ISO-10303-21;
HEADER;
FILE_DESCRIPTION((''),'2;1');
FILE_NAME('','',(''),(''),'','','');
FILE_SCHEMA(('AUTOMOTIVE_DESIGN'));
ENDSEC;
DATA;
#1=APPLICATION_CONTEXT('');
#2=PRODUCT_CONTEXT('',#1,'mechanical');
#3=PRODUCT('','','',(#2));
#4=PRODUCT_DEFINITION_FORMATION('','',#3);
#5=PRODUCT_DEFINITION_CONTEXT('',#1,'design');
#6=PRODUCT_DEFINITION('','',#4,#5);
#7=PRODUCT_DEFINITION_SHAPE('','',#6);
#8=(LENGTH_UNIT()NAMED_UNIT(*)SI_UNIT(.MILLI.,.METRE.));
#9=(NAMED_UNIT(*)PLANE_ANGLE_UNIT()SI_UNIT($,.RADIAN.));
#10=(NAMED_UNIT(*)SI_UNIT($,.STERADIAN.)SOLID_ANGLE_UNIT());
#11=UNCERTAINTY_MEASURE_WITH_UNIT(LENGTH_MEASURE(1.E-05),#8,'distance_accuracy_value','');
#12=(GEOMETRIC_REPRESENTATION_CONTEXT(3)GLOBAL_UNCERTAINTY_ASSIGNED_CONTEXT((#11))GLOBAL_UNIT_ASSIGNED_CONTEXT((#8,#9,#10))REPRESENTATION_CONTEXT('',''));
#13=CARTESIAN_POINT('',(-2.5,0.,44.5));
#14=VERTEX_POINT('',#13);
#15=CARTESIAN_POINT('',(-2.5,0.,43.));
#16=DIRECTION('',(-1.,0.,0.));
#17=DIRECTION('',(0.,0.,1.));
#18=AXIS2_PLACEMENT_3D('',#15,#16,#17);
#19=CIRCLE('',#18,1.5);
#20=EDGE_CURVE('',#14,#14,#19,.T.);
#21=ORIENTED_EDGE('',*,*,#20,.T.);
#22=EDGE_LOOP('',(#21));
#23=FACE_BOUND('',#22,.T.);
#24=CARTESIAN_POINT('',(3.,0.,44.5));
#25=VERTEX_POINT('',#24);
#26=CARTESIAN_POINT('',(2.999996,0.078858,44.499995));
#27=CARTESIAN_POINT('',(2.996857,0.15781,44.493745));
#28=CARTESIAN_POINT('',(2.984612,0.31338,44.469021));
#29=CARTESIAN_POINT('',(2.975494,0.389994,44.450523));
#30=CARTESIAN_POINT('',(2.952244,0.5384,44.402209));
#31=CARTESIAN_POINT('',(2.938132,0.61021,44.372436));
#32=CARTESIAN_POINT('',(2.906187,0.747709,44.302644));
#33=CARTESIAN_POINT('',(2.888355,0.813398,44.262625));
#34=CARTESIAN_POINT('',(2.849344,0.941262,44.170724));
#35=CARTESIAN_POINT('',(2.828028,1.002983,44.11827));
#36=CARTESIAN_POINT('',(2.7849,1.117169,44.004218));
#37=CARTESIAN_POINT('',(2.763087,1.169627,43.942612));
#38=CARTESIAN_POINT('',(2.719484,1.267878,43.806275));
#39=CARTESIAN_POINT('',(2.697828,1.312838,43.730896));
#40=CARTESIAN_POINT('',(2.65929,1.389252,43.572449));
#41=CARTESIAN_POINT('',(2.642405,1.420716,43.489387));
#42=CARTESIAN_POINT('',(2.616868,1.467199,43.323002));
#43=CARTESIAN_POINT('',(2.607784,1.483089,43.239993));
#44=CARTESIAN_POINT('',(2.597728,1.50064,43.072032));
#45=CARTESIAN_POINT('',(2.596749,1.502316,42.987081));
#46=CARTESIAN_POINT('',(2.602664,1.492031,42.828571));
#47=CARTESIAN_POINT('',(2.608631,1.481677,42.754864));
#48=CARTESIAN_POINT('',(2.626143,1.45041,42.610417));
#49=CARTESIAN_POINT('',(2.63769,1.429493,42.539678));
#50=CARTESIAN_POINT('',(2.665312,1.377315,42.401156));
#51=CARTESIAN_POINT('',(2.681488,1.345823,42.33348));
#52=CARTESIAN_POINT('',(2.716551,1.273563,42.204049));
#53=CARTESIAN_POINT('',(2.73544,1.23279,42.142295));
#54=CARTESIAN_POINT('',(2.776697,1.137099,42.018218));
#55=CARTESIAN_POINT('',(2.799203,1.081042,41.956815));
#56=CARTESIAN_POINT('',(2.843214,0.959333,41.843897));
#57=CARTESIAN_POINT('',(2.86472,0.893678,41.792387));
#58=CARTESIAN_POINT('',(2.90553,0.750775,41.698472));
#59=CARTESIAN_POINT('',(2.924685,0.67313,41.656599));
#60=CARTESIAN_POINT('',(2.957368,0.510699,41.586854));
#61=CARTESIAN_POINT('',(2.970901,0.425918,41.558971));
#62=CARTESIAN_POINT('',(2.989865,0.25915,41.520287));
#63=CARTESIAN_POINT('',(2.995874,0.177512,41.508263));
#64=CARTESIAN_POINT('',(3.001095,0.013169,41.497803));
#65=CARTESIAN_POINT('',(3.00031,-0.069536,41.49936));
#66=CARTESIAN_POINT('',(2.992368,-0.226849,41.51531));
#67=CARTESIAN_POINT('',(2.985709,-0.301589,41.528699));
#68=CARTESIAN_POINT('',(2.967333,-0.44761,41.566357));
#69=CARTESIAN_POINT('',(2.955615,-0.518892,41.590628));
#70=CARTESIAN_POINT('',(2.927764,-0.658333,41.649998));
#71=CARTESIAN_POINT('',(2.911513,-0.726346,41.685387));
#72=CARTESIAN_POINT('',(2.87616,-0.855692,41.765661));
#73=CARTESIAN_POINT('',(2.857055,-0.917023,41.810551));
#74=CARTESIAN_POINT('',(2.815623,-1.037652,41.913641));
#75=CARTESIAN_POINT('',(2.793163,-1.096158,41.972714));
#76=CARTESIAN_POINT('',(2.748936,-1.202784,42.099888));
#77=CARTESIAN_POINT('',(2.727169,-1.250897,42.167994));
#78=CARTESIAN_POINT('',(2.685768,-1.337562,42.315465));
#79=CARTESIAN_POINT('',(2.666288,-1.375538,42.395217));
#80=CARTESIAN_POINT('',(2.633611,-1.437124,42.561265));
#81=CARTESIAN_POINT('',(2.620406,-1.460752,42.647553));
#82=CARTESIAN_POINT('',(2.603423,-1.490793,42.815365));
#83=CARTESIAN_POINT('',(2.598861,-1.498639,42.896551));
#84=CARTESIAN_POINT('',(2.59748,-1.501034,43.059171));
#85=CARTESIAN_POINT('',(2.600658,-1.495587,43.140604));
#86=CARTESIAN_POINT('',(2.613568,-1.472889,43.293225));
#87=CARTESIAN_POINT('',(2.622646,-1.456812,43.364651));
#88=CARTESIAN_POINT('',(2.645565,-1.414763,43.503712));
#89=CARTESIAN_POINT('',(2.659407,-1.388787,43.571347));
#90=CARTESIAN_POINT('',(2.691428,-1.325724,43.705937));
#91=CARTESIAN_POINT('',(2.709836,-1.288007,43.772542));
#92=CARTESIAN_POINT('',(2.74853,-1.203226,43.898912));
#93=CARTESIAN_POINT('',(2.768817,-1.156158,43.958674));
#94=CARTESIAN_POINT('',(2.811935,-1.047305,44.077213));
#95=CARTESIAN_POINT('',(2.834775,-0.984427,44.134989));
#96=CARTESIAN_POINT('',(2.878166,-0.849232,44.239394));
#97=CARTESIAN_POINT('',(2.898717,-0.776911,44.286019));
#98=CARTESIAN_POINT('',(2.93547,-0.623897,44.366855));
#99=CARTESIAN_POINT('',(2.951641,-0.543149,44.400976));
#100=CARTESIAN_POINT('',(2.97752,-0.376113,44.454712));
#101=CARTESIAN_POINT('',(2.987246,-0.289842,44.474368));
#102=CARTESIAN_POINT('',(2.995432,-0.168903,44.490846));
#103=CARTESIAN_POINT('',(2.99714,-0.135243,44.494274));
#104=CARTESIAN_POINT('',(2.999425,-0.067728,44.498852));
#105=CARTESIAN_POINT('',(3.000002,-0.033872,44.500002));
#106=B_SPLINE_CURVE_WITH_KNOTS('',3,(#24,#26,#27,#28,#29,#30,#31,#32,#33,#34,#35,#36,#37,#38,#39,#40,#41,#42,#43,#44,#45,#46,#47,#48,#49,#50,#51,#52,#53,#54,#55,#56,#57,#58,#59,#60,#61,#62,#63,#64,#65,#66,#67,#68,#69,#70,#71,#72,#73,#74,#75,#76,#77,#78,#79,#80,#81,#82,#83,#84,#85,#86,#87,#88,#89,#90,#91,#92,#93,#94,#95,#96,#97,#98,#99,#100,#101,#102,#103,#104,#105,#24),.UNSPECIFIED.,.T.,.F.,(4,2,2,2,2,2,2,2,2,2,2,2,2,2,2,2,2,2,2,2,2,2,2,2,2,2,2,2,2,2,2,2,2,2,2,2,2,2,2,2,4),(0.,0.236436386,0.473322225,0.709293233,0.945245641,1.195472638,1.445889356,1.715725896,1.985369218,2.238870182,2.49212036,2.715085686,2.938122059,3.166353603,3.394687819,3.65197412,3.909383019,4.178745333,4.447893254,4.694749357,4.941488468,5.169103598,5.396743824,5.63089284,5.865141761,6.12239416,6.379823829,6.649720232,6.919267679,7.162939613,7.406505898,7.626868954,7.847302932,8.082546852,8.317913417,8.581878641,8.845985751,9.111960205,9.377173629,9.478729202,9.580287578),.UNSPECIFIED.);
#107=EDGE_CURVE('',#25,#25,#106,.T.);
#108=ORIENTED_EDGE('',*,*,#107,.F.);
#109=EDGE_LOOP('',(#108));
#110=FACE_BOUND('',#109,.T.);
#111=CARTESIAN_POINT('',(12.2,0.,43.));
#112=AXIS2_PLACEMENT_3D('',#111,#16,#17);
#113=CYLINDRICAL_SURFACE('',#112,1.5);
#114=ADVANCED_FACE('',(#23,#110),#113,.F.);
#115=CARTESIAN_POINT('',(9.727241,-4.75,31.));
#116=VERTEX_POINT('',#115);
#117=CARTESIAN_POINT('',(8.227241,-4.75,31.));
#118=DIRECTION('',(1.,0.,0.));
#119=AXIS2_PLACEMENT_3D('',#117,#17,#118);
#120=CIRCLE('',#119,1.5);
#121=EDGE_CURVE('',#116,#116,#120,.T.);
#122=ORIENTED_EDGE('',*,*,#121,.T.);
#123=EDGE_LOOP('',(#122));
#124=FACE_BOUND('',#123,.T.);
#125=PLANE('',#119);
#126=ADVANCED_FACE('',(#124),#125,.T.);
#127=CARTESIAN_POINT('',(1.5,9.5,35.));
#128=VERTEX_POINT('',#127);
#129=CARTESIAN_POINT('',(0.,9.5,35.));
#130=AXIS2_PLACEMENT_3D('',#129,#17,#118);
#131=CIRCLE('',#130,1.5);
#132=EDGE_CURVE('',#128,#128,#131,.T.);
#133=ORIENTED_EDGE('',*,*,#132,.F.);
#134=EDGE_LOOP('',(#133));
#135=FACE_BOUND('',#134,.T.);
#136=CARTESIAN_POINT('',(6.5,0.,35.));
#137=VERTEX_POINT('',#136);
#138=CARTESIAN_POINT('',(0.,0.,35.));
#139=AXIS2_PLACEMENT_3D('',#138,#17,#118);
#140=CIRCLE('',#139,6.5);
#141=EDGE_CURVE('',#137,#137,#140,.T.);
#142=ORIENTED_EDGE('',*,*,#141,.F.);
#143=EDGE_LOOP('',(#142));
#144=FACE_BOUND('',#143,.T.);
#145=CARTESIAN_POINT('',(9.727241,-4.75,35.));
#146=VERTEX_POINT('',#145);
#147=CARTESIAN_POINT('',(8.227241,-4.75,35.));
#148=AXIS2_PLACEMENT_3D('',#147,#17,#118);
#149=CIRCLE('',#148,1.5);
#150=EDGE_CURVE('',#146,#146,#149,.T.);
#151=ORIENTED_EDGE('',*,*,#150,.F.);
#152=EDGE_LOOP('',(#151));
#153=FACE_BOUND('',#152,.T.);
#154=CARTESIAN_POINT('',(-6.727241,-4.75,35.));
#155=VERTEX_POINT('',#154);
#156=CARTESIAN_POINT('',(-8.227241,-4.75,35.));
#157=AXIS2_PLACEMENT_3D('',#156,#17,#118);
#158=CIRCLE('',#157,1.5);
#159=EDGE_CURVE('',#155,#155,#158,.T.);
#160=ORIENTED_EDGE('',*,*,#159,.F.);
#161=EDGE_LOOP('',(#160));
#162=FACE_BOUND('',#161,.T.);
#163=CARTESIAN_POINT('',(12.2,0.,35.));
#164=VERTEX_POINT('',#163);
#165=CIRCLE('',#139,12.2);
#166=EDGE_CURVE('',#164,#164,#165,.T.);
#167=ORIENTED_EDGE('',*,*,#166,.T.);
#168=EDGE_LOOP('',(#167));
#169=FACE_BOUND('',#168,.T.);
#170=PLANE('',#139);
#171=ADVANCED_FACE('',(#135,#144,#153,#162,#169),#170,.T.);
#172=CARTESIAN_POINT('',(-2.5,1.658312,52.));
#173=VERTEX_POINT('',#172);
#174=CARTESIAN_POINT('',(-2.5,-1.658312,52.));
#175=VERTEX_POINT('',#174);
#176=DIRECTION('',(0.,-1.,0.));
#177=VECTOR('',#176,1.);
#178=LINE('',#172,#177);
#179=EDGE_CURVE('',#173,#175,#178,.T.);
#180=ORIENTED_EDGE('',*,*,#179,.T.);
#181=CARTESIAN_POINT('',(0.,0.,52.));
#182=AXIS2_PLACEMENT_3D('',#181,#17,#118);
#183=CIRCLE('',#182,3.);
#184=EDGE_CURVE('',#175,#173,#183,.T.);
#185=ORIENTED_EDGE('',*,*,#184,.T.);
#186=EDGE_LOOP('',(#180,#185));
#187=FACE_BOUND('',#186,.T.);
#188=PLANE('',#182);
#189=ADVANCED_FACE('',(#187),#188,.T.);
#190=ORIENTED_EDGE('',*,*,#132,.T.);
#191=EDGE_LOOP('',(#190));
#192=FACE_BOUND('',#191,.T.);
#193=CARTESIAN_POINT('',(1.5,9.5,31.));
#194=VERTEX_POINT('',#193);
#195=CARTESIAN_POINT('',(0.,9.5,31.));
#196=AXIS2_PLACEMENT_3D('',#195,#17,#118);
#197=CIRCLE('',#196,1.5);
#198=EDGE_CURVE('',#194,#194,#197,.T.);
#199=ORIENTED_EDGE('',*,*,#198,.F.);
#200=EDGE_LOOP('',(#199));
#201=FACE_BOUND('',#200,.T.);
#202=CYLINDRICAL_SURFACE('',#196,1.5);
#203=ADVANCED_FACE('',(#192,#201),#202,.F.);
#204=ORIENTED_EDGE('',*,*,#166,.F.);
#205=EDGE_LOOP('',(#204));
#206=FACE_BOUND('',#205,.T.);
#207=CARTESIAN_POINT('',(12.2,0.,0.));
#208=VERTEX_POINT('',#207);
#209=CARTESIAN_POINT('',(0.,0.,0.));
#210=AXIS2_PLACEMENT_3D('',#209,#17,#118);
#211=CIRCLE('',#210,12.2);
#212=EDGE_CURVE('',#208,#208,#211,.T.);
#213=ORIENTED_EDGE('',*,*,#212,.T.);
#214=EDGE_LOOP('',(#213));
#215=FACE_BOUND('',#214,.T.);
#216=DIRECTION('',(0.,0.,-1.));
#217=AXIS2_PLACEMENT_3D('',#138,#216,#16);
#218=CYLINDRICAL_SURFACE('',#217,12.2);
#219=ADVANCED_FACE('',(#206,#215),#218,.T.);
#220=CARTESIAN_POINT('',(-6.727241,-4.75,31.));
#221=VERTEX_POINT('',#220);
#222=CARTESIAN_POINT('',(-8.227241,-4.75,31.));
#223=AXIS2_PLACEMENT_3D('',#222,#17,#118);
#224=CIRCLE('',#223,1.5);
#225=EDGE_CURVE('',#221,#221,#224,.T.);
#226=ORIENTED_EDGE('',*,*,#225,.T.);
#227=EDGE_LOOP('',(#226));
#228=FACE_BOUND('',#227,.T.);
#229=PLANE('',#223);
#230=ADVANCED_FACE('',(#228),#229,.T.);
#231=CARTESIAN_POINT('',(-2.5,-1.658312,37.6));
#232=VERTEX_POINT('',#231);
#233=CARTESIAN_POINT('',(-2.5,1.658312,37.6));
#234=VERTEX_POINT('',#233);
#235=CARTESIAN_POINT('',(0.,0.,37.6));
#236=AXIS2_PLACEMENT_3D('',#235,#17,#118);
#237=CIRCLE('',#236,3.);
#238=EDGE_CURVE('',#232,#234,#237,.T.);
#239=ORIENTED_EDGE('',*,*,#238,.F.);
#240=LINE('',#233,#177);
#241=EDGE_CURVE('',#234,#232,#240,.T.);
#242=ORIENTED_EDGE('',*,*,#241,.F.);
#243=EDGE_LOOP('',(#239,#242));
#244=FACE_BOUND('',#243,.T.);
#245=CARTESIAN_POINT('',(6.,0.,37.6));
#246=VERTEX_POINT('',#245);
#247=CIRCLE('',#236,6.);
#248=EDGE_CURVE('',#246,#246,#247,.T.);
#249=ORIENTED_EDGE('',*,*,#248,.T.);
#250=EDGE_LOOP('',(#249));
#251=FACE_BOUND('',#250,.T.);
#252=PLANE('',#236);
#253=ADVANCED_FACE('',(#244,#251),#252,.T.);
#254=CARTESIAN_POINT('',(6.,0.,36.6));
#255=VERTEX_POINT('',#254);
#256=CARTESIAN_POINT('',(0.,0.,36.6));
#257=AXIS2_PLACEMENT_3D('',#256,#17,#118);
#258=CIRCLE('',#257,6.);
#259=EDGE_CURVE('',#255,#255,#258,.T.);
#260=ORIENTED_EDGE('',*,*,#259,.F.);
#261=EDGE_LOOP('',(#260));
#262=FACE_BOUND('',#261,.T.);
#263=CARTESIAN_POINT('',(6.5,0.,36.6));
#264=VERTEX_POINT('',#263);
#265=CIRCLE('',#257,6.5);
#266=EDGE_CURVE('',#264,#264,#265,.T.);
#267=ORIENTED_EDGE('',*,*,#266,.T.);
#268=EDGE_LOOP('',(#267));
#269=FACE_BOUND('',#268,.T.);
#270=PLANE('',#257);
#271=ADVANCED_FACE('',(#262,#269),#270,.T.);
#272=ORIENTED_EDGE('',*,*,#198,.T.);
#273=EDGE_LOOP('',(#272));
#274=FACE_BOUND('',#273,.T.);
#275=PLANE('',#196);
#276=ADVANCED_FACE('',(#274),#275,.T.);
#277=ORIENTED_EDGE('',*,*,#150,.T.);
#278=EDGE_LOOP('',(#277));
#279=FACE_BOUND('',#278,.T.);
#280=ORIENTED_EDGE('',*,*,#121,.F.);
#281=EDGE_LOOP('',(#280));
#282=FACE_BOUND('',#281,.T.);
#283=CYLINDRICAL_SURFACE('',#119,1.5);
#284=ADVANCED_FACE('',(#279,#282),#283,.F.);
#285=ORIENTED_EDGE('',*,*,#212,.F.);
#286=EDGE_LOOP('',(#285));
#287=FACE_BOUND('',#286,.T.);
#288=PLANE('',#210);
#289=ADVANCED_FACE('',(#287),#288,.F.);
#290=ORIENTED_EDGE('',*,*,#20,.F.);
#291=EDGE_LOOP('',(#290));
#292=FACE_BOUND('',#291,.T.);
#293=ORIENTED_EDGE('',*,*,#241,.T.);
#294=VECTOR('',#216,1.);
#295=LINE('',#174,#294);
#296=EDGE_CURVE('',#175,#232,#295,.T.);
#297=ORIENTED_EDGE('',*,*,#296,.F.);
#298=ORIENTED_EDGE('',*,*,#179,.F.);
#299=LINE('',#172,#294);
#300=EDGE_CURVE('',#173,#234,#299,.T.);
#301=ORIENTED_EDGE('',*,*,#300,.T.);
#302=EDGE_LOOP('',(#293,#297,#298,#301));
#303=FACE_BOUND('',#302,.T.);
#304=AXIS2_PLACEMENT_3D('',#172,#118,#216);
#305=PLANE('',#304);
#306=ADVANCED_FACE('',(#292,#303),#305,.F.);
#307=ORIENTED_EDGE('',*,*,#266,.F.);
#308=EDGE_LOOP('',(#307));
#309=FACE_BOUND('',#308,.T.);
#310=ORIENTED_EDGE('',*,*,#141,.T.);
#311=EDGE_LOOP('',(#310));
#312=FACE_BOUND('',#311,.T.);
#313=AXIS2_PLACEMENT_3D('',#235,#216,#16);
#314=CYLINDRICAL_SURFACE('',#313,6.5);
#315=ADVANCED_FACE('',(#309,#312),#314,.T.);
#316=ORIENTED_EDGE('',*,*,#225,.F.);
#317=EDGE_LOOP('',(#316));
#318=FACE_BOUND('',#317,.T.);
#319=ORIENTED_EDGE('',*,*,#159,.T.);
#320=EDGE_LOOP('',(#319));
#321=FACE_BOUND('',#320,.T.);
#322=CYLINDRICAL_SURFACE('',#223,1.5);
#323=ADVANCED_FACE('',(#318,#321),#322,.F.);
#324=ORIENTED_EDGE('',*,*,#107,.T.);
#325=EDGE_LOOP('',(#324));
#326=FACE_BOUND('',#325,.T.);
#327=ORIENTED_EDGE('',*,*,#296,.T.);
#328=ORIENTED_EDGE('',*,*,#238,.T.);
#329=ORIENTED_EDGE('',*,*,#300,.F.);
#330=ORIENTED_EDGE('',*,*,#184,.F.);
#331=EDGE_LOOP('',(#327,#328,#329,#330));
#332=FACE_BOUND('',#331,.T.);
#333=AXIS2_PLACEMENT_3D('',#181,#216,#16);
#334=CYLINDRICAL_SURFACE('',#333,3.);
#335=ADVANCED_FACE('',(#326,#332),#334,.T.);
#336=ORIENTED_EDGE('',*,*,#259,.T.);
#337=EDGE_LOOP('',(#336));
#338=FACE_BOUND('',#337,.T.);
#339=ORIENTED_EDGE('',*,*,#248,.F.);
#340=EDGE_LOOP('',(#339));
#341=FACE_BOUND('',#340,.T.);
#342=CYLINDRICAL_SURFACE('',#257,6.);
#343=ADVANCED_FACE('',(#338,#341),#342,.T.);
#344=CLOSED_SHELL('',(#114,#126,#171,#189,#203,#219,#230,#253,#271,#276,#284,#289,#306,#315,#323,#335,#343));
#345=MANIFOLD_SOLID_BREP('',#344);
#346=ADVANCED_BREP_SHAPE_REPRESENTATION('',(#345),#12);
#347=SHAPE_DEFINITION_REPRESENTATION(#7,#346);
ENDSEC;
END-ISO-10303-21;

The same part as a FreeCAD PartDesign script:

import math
import FreeCAD as App
import Part
import Sketcher
from FreeCAD import Vector
Q = App.Units.Quantity

doc = App.newDocument("Part")
body = doc.addObject("PartDesign::Body", "Body")

sketch1 = body.newObject("Sketcher::SketchObject", "Sketch")
sketch1.AttachmentSupport = (doc.getObject("XY_Plane"), [""])
sketch1.MapMode = "FlatFace"
sketch1.addGeometry(Part.Circle(Vector(0, 0, 0), Vector(0, 0, 1), 12), False)
sketch1.addConstraint(Sketcher.Constraint("Coincident", 0, 3, -1, 1))
sketch1.addConstraint(Sketcher.Constraint("Diameter", 0, Q("24.4 mm")))
pad1 = body.newObject("PartDesign::Pad", "Pad")
pad1.Profile = sketch1
pad1.Length = 35

sketch2 = body.newObject("Sketcher::SketchObject", "Sketch001")
sketch2.AttachmentSupport = (doc.getObject("XY_Plane"), [""])
sketch2.MapMode = "FlatFace"
sketch2.AttachmentOffset = App.Placement(Vector(0, 0, 35), App.Rotation())
sketch2.addGeometry(Part.Circle(Vector(0, 0, 0), Vector(0, 0, 1), 6), False)
sketch2.addConstraint(Sketcher.Constraint("Coincident", 0, 3, -1, 1))
sketch2.addConstraint(Sketcher.Constraint("Diameter", 0, Q("13 mm")))
pad2 = body.newObject("PartDesign::Pad", "Pad001")
pad2.Profile = sketch2
pad2.Length = 2.6

sketch3 = body.newObject("Sketcher::SketchObject", "Sketch002")
sketch3.AttachmentSupport = (doc.getObject("XY_Plane"), [""])
sketch3.MapMode = "FlatFace"
sketch3.AttachmentOffset = App.Placement(Vector(0, 0, 37.6), App.Rotation())
sketch3.addGeometry(Part.LineSegment(Vector(-2.5, 1.7, 0), Vector(-2.5, -1.7, 0)), False)
sketch3.addGeometry(Part.ArcOfCircle(Part.Circle(Vector(0, 0, 0), Vector(0, 0, 1), 3), math.radians(-146), math.radians(146)), False)
sketch3.addConstraint(Sketcher.Constraint("Coincident", 0, 1, 1, 2))
sketch3.addConstraint(Sketcher.Constraint("Coincident", 1, 1, 0, 2))
sketch3.addConstraint(Sketcher.Constraint("Vertical", 0))
sketch3.addConstraint(Sketcher.Constraint("Coincident", 1, 3, -1, 1))
sketch3.addConstraint(Sketcher.Constraint("Radius", 1, Q("3 mm")))
sketch3.addConstraint(Sketcher.Constraint("DistanceX", 0, 1, -1, 1, Q("2.5 mm")))
pad3 = body.newObject("PartDesign::Pad", "Pad002")
pad3.Profile = sketch3
pad3.Length = 14.4

sketch4 = body.newObject("Sketcher::SketchObject", "Sketch003")
sketch4.AttachmentSupport = (doc.getObject("XY_Plane"), [""])
sketch4.MapMode = "FlatFace"
sketch4.AttachmentOffset = App.Placement(Vector(0, 0, 36.6), App.Rotation())
sketch4.addGeometry(Part.Circle(Vector(0, 0, 0), Vector(0, 0, 1), 6), False)
sketch4.addGeometry(Part.Circle(Vector(0, 0, 0), Vector(0, 0, 1), 6), False)
sketch4.addConstraint(Sketcher.Constraint("Coincident", 0, 3, -1, 1))
sketch4.addConstraint(Sketcher.Constraint("Coincident", 1, 3, -1, 1))
sketch4.addConstraint(Sketcher.Constraint("Diameter", 0, Q("13 mm")))
sketch4.addConstraint(Sketcher.Constraint("Diameter", 1, Q("12 mm")))
pocket1 = body.newObject("PartDesign::Pocket", "Pocket")
pocket1.Profile = sketch4
pocket1.Length = 1
pocket1.Reversed = True

sketch5 = body.newObject("Sketcher::SketchObject", "Sketch004")
sketch5.AttachmentSupport = (doc.getObject("YZ_Plane"), [""])
sketch5.MapMode = "FlatFace"
sketch5.AttachmentOffset = App.Placement(Vector(0, 0, -2.5), App.Rotation())
sketch5.addGeometry(Part.Circle(Vector(0, 43, 0), Vector(0, 0, 1), 1.5), False)
sketch5.addConstraint(Sketcher.Constraint("PointOnObject", 0, 3, -2))
sketch5.addConstraint(Sketcher.Constraint("Diameter", 0, Q("3 mm")))
sketch5.addConstraint(Sketcher.Constraint("DistanceY", -1, 1, 0, 3, Q("43 mm")))
pocket2 = body.newObject("PartDesign::Pocket", "Pocket001")
pocket2.Profile = sketch5
pocket2.Type = "ThroughAll"
pocket2.Reversed = True

sketch6 = body.newObject("Sketcher::SketchObject", "Sketch005")
sketch6.AttachmentSupport = (doc.getObject("XY_Plane"), [""])
sketch6.MapMode = "FlatFace"
sketch6.AttachmentOffset = App.Placement(Vector(0, 0, 35), App.Rotation())
sketch6.addGeometry(Part.Circle(Vector(0, 9.5, 0), Vector(0, 0, 1), 1.5), False)
sketch6.addGeometry(Part.Circle(Vector(8.2, -4.8, 0), Vector(0, 0, 1), 1.5), False)
sketch6.addGeometry(Part.Circle(Vector(-8.2, -4.8, 0), Vector(0, 0, 1), 1.5), False)
sketch6.addConstraint(Sketcher.Constraint("Equal", 0, 1))
sketch6.addConstraint(Sketcher.Constraint("Equal", 1, 2))
sketch6.addConstraint(Sketcher.Constraint("Symmetric", 1, 3, 2, 3, -2))
sketch6.addConstraint(Sketcher.Constraint("PointOnObject", 0, 3, -2))
sketch6.addConstraint(Sketcher.Constraint("Diameter", 0, Q("3 mm")))
sketch6.addConstraint(Sketcher.Constraint("DistanceY", -1, 1, 0, 3, Q("9.5 mm")))
sketch6.addConstraint(Sketcher.Constraint("DistanceY", 1, 3, -1, 1, Q("4.75 mm")))
sketch6.addConstraint(Sketcher.Constraint("DistanceX", -1, 1, 1, 3, Q("8.227241 mm")))
pocket3 = body.newObject("PartDesign::Pocket", "Pocket002")
pocket3.Profile = sketch6
pocket3.Length = 4

doc.recompute()
